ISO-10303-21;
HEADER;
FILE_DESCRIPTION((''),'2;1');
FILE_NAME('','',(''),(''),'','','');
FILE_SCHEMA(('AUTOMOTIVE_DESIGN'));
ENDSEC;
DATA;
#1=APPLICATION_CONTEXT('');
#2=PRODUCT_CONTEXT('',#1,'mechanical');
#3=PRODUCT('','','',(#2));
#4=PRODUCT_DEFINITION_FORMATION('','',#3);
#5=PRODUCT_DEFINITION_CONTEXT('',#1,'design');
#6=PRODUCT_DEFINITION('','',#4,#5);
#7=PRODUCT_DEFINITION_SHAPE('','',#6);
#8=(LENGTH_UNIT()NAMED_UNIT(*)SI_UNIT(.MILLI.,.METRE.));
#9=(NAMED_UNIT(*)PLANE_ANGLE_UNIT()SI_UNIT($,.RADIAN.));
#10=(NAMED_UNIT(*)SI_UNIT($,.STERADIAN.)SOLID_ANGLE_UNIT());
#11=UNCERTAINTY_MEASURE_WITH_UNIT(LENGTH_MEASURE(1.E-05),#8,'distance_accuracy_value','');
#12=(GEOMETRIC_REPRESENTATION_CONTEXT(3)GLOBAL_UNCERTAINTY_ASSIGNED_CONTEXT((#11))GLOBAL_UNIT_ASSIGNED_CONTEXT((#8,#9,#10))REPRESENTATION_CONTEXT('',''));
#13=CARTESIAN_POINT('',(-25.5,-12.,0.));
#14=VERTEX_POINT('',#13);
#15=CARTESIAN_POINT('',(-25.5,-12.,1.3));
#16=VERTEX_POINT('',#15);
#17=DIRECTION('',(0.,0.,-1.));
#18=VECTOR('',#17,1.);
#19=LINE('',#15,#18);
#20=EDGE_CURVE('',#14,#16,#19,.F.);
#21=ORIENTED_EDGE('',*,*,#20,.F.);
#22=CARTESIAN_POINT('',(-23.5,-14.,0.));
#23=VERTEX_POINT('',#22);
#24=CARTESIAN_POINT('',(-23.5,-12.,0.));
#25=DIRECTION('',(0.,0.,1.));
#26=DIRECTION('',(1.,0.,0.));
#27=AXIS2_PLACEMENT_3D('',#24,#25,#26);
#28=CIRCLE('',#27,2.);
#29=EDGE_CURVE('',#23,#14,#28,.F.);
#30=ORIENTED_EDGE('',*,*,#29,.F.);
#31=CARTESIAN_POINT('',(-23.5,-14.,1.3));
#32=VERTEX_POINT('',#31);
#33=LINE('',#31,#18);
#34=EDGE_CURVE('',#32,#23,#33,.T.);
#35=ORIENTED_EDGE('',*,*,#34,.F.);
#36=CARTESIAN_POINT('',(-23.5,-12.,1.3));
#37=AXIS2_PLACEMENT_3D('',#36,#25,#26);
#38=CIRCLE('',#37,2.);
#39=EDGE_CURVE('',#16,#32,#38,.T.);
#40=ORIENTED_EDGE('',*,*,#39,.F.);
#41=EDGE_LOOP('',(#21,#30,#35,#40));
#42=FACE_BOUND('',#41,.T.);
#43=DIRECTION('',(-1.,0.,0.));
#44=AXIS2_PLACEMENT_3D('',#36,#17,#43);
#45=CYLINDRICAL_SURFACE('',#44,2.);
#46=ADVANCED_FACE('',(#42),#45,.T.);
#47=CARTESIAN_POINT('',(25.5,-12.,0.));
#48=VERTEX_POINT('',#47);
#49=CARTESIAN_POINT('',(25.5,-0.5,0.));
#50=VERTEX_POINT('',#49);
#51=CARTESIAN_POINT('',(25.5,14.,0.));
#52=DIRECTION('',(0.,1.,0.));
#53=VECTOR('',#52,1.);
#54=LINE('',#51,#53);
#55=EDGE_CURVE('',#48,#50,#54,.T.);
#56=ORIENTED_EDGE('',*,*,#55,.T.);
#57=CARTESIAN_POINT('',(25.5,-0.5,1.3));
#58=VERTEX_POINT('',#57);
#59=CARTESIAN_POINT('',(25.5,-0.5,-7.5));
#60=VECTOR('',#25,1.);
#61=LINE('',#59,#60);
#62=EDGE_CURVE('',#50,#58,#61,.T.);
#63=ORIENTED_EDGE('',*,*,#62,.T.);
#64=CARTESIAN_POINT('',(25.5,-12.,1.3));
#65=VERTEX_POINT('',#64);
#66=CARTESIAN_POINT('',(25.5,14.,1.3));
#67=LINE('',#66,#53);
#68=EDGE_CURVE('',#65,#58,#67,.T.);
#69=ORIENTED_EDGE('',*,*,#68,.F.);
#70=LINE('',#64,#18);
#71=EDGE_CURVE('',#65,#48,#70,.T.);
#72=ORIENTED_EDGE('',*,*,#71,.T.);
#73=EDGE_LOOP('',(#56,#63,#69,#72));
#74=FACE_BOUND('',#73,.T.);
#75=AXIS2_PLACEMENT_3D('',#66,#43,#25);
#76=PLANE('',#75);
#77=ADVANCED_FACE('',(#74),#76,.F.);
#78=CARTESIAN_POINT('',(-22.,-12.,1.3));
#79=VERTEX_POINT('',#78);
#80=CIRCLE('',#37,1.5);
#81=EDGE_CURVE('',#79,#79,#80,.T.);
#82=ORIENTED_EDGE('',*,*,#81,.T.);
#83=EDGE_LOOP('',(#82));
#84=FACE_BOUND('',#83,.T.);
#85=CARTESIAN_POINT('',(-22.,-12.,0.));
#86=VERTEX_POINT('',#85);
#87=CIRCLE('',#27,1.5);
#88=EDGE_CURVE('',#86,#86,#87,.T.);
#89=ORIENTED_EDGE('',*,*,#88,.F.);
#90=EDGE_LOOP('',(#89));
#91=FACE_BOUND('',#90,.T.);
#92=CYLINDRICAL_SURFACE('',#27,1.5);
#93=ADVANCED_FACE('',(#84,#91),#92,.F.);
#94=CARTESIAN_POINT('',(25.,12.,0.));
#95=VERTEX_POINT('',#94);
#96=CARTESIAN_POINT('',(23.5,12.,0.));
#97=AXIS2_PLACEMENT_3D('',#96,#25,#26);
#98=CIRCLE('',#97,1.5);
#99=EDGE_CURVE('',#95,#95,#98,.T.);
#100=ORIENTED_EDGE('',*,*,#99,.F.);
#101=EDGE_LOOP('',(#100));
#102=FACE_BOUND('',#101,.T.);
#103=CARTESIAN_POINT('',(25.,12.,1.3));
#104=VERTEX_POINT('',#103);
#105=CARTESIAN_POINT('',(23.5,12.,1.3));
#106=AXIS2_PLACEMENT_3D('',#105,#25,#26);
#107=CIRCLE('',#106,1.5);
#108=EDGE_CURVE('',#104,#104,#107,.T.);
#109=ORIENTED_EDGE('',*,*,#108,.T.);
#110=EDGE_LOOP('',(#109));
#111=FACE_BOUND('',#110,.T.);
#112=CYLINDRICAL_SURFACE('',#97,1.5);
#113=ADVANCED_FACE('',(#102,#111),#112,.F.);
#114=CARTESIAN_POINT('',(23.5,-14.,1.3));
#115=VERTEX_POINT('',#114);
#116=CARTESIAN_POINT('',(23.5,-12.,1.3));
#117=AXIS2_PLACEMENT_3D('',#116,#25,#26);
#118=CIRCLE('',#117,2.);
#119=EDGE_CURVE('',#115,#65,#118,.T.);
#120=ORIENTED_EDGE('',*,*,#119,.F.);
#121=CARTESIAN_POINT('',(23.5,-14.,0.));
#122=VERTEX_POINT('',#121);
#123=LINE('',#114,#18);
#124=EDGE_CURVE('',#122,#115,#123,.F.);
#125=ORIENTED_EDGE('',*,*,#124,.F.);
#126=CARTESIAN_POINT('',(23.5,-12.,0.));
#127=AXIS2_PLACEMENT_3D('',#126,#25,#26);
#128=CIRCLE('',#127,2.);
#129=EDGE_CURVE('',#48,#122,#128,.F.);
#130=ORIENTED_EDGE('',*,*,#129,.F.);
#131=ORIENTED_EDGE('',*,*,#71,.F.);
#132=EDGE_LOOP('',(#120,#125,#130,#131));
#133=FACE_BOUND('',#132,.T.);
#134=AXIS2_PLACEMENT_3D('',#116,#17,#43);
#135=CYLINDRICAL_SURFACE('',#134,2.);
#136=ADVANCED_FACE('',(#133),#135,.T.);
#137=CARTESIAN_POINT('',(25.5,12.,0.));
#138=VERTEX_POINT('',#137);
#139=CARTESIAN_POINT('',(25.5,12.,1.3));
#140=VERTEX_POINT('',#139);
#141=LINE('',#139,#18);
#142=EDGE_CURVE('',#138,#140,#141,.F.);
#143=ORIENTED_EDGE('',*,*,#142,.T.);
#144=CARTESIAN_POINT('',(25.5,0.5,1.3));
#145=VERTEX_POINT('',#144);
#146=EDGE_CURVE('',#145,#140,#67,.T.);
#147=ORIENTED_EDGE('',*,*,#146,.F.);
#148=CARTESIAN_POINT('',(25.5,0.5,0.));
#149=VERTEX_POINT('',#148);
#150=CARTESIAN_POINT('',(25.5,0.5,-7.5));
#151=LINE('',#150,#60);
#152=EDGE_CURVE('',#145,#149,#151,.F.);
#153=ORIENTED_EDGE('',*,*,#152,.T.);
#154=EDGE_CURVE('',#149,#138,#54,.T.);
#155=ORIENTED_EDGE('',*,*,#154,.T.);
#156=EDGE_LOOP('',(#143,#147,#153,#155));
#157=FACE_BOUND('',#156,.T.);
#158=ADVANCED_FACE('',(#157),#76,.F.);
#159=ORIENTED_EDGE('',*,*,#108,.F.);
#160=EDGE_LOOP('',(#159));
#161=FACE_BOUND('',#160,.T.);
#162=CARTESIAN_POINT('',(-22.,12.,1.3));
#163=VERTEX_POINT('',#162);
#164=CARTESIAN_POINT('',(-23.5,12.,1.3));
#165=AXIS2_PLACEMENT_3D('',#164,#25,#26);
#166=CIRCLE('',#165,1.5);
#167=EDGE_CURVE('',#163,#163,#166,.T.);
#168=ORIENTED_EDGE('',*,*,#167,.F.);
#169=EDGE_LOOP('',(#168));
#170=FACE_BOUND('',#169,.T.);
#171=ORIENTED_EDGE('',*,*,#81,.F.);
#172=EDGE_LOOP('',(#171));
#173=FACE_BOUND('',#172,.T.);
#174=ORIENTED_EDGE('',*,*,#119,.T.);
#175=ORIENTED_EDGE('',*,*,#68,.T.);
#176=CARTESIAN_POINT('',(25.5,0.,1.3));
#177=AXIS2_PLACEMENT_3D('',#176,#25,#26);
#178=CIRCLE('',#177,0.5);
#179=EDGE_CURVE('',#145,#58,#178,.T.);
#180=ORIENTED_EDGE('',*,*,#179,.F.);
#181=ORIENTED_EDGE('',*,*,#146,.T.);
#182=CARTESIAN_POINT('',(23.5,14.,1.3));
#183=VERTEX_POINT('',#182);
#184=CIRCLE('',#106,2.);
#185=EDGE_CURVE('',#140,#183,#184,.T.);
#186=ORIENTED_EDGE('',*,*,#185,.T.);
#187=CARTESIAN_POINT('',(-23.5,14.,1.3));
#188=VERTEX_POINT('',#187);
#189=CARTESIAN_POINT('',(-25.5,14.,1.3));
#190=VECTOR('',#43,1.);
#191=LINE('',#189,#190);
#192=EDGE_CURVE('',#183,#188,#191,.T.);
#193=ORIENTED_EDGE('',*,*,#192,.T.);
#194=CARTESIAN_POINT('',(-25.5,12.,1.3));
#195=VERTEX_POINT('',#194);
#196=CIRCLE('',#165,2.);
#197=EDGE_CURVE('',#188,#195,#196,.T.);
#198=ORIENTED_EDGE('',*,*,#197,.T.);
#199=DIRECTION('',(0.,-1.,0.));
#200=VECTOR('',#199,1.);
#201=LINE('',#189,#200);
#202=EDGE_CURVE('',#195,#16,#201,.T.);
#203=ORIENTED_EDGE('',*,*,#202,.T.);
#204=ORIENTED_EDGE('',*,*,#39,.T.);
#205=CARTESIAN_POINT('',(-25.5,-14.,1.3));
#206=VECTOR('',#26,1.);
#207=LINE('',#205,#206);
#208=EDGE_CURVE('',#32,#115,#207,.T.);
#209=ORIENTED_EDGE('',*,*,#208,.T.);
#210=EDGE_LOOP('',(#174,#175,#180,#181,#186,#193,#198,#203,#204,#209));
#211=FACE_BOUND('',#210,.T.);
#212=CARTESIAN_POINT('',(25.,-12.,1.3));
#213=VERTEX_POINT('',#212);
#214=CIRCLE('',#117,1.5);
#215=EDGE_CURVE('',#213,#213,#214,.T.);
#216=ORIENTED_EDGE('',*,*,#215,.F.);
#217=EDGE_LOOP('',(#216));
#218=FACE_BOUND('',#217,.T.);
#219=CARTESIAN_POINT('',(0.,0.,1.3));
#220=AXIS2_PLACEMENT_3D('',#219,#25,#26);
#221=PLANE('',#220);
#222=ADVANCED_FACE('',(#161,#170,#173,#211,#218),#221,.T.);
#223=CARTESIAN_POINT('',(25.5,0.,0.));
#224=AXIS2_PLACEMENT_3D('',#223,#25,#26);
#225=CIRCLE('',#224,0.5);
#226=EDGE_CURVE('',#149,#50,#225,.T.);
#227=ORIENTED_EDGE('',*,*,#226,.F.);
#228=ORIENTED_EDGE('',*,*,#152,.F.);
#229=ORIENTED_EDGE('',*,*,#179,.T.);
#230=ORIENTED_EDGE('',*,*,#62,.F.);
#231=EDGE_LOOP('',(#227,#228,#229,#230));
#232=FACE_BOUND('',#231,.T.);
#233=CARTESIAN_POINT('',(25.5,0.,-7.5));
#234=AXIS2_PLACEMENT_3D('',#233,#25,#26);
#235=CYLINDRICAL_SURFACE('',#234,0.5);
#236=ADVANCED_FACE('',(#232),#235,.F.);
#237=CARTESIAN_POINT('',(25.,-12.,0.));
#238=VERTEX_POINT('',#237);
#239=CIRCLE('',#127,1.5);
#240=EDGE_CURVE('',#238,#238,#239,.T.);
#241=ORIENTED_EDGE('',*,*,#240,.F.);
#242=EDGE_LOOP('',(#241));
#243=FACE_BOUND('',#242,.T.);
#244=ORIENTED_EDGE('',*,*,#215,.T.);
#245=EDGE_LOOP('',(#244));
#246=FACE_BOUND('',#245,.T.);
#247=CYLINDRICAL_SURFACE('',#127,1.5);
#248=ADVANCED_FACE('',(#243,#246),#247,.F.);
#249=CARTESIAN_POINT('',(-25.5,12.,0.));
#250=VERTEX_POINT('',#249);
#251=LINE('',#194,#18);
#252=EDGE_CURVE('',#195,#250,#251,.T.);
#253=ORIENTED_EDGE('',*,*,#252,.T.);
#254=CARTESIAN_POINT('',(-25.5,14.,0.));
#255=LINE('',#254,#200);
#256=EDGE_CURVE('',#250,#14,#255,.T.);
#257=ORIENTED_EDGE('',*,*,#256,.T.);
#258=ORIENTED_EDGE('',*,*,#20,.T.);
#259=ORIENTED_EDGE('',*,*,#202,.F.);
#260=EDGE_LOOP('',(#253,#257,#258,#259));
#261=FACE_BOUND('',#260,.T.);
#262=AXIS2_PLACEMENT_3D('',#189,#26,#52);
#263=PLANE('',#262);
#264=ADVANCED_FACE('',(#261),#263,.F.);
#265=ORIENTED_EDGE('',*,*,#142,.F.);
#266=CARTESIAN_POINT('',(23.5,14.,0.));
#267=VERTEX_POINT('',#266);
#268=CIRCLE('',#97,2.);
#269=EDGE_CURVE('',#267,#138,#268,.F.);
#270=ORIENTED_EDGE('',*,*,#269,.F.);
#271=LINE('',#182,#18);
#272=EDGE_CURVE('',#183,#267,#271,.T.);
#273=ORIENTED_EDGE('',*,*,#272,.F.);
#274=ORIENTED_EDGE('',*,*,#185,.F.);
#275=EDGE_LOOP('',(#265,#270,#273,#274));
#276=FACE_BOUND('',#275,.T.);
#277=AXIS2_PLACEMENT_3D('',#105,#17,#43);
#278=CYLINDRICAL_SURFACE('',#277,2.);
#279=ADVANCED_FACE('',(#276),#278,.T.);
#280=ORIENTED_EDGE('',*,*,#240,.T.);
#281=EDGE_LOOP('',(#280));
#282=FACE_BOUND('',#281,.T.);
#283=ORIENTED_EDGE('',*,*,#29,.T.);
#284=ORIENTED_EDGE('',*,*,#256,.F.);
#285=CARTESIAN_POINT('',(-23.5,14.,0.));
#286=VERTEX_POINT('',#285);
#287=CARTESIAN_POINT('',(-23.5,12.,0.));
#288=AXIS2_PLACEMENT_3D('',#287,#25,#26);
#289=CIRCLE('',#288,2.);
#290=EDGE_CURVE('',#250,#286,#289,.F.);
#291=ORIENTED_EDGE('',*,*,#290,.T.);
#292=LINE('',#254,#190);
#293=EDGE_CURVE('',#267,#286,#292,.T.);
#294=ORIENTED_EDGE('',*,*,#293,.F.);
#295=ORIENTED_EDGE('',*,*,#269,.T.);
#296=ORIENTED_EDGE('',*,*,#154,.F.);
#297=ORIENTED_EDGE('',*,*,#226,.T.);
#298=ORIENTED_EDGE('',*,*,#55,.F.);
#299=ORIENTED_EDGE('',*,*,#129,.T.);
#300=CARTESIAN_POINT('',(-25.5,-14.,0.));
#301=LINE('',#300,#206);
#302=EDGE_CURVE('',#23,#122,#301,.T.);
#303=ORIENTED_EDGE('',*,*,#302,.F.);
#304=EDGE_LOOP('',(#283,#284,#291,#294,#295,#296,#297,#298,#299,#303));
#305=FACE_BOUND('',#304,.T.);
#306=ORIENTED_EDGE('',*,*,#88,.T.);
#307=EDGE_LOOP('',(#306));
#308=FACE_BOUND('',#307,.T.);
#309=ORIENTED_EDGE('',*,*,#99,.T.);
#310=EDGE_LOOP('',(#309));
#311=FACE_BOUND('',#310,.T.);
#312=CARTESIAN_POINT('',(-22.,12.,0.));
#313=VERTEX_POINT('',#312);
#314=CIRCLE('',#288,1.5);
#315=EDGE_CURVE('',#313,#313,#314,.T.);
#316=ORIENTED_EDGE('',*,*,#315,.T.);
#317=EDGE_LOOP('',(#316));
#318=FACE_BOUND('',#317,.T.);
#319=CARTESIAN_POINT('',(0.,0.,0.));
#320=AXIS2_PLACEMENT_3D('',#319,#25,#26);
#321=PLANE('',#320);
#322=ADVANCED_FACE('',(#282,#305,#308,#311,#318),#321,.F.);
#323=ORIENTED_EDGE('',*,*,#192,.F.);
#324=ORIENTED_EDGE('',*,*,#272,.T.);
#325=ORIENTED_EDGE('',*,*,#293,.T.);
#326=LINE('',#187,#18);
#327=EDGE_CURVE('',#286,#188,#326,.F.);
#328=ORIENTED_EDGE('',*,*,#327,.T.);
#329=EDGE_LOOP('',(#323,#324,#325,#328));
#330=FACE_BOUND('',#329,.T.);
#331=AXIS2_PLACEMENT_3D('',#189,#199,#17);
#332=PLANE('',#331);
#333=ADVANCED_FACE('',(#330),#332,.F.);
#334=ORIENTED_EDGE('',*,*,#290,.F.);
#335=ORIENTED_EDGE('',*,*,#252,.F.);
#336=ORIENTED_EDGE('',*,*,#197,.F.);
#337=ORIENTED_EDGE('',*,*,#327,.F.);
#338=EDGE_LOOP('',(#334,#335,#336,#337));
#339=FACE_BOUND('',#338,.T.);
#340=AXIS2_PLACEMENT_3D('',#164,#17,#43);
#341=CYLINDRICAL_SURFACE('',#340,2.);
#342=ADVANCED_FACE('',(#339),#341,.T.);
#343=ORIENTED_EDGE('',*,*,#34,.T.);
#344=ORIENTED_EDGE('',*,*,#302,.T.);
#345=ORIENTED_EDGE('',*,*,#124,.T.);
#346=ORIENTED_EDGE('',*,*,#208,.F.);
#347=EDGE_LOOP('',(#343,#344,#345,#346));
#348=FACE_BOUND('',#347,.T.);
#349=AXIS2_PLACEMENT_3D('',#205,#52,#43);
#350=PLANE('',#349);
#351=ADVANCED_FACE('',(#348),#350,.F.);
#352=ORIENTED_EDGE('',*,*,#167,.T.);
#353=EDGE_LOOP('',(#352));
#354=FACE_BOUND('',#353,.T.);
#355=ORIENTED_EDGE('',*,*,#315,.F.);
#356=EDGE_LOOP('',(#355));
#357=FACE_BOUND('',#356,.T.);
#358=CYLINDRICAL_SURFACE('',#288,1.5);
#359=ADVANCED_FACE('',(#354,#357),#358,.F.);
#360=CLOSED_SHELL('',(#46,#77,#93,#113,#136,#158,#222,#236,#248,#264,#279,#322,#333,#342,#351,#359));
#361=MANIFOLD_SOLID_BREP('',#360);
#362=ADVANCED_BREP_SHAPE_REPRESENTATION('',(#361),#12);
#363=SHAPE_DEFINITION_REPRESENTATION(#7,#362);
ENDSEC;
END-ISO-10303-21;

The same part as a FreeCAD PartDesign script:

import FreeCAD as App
import Part
import Sketcher

V = App.Vector
Q = App.Units.Quantity


def edges_at(feature, points):
    """Names of the edges that pass closest to the given points."""
    edges = feature.Shape.Edges
    near = lambda p: min(range(len(edges)), key=lambda i: edges[i].distToShape(Part.Vertex(*p))[0])
    return sorted({f"Edge{near(p) + 1}" for p in points})

doc = App.newDocument("Part")
params = doc.addObject("Spreadsheet::Sheet", "Params")
for row, (alias, value) in enumerate([
    ("sketch1_width", "51 mm"),
    ("sketch1_height", "28 mm"),
    ("pad1_length", "1.3 mm"),
    ("sketch2_diameter", "3 mm"),
    ("pocket1_length", "1.3 mm"),
    ("fillet_radius", "2 mm"),
    ("fillet2_radius", "2 mm"),
    ("fillet3_radius", "2 mm"),
    ("fillet4_radius", "2 mm"),
    ("sketch3_diameter", "1 mm"),
    ("pocket2_length", "8.8 mm"),
], start=1):
    params.set(f"A{row}", alias)
    params.set(f"B{row}", "=" + value)
    params.setAlias(f"B{row}", alias)

body = doc.addObject("PartDesign::Body", "Body")

sketch1 = doc.addObject("Sketcher::SketchObject", "Sketch")
body.addObject(sketch1)
sketch1.AttachmentSupport = (doc.XY_Plane, [""])
sketch1.MapMode = "FlatFace"
sketch1.addGeometry([
    Part.LineSegment(V(-26, 14, 0), V(-26, -14, 0)),
    Part.LineSegment(V(-26, -14, 0), V(26, -14, 0)),
    Part.LineSegment(V(26, -14, 0), V(26, 14, 0)),
    Part.LineSegment(V(26, 14, 0), V(-26, 14, 0)),
], False)
sketch1.addConstraint([
    Sketcher.Constraint("Coincident", 0, 2, 1, 1),
    Sketcher.Constraint("Coincident", 1, 2, 2, 1),
    Sketcher.Constraint("Coincident", 2, 2, 3, 1),
    Sketcher.Constraint("Coincident", 3, 2, 0, 1),
    Sketcher.Constraint("Vertical", 0),
    Sketcher.Constraint("Horizontal", 1),
    Sketcher.Constraint("Vertical", 2),
    Sketcher.Constraint("Horizontal", 3),
    Sketcher.Constraint("Symmetric", 0, 2, 2, 2, -1, 1),
    Sketcher.Constraint("DistanceX", 1, 1, 1, 2, Q("51 mm")),
    Sketcher.Constraint("DistanceY", 0, 2, 0, 1, Q("28 mm")),
])
sketch1.setExpression("Constraints[9]", "Params.sketch1_width")
sketch1.setExpression("Constraints[10]", "Params.sketch1_height")
pad1 = doc.addObject("PartDesign::Pad", "Pad")
body.addObject(pad1)
pad1.Profile = sketch1
pad1.setExpression("Length", "Params.pad1_length")

sketch2 = doc.addObject("Sketcher::SketchObject", "Sketch001")
body.addObject(sketch2)
sketch2.AttachmentSupport = (doc.XY_Plane, [""])
sketch2.MapMode = "FlatFace"
sketch2.AttachmentOffset = App.Placement(V(0, 0, 1.3), App.Rotation())
sketch2.addGeometry([
    Part.Circle(V(23.5, 12, 0), V(0, 0, 1), 1.5),
    Part.Circle(V(23.5, -12, 0), V(0, 0, 1), 1.5),
    Part.Circle(V(-23.5, -12, 0), V(0, 0, 1), 1.5),
    Part.Circle(V(-23.5, 12, 0), V(0, 0, 1), 1.5),
], False)
sketch2.addConstraint([
    Sketcher.Constraint("Equal", 0, 1),
    Sketcher.Constraint("Equal", 1, 2),
    Sketcher.Constraint("Equal", 2, 3),
    Sketcher.Constraint("Symmetric", 0, 3, 2, 3, -1, 1),
    Sketcher.Constraint("Symmetric", 1, 3, 3, 3, -1, 1),
    Sketcher.Constraint("Symmetric", 1, 3, 2, 3, -2),
    Sketcher.Constraint("Diameter", 0, Q("3 mm")),
    Sketcher.Constraint("DistanceY", -1, 1, 0, 3, Q("12 mm")),
    Sketcher.Constraint("DistanceX", 2, 3, 1, 3, Q("47 mm")),
])
sketch2.setExpression("Constraints[6]", "Params.sketch2_diameter")
pocket1 = doc.addObject("PartDesign::Pocket", "Pocket")
body.addObject(pocket1)
pocket1.Profile = sketch2
pocket1.setExpression("Length", "Params.pocket1_length")
doc.recompute()

fillet = doc.addObject("PartDesign::Fillet", "Fillet")
body.addObject(fillet)
fillet.Base = (pocket1, edges_at(pocket1, [(25.5, 14, 0.65)]))
fillet.setExpression("Radius", "Params.fillet_radius")
doc.recompute()

fillet2 = doc.addObject("PartDesign::Fillet", "Fillet001")
body.addObject(fillet2)
fillet2.Base = (fillet, edges_at(fillet, [(25.5, -14, 0.65)]))
fillet2.setExpression("Radius", "Params.fillet2_radius")
doc.recompute()

fillet3 = doc.addObject("PartDesign::Fillet", "Fillet002")
body.addObject(fillet3)
fillet3.Base = (fillet2, edges_at(fillet2, [(-25.5, -14, 0.65)]))
fillet3.setExpression("Radius", "Params.fillet3_radius")
doc.recompute()

fillet4 = doc.addObject("PartDesign::Fillet", "Fillet003")
body.addObject(fillet4)
fillet4.Base = (fillet3, edges_at(fillet3, [(-25.5, 14, 0.65)]))
fillet4.setExpression("Radius", "Params.fillet4_radius")

sketch3 = doc.addObject("Sketcher::SketchObject", "Sketch002")
body.addObject(sketch3)
sketch3.AttachmentSupport = (doc.XY_Plane, [""])
sketch3.MapMode = "FlatFace"
sketch3.AttachmentOffset = App.Placement(V(0, 0, 1.3), App.Rotation())
sketch3.addGeometry(Part.Circle(V(25.5, 0, 0), V(0, 0, 1), 0.5), False)
sketch3.addConstraint([
    Sketcher.Constraint("PointOnObject", 0, 3, -1),
    Sketcher.Constraint("Diameter", 0, Q("1 mm")),
    Sketcher.Constraint("DistanceX", -1, 1, 0, 3, Q("25.5 mm")),
])
sketch3.setExpression("Constraints[1]", "Params.sketch3_diameter")
pocket2 = doc.addObject("PartDesign::Pocket", "Pocket001")
body.addObject(pocket2)
pocket2.Profile = sketch3
pocket2.setExpression("Length", "Params.pocket2_length")

doc.recompute()
